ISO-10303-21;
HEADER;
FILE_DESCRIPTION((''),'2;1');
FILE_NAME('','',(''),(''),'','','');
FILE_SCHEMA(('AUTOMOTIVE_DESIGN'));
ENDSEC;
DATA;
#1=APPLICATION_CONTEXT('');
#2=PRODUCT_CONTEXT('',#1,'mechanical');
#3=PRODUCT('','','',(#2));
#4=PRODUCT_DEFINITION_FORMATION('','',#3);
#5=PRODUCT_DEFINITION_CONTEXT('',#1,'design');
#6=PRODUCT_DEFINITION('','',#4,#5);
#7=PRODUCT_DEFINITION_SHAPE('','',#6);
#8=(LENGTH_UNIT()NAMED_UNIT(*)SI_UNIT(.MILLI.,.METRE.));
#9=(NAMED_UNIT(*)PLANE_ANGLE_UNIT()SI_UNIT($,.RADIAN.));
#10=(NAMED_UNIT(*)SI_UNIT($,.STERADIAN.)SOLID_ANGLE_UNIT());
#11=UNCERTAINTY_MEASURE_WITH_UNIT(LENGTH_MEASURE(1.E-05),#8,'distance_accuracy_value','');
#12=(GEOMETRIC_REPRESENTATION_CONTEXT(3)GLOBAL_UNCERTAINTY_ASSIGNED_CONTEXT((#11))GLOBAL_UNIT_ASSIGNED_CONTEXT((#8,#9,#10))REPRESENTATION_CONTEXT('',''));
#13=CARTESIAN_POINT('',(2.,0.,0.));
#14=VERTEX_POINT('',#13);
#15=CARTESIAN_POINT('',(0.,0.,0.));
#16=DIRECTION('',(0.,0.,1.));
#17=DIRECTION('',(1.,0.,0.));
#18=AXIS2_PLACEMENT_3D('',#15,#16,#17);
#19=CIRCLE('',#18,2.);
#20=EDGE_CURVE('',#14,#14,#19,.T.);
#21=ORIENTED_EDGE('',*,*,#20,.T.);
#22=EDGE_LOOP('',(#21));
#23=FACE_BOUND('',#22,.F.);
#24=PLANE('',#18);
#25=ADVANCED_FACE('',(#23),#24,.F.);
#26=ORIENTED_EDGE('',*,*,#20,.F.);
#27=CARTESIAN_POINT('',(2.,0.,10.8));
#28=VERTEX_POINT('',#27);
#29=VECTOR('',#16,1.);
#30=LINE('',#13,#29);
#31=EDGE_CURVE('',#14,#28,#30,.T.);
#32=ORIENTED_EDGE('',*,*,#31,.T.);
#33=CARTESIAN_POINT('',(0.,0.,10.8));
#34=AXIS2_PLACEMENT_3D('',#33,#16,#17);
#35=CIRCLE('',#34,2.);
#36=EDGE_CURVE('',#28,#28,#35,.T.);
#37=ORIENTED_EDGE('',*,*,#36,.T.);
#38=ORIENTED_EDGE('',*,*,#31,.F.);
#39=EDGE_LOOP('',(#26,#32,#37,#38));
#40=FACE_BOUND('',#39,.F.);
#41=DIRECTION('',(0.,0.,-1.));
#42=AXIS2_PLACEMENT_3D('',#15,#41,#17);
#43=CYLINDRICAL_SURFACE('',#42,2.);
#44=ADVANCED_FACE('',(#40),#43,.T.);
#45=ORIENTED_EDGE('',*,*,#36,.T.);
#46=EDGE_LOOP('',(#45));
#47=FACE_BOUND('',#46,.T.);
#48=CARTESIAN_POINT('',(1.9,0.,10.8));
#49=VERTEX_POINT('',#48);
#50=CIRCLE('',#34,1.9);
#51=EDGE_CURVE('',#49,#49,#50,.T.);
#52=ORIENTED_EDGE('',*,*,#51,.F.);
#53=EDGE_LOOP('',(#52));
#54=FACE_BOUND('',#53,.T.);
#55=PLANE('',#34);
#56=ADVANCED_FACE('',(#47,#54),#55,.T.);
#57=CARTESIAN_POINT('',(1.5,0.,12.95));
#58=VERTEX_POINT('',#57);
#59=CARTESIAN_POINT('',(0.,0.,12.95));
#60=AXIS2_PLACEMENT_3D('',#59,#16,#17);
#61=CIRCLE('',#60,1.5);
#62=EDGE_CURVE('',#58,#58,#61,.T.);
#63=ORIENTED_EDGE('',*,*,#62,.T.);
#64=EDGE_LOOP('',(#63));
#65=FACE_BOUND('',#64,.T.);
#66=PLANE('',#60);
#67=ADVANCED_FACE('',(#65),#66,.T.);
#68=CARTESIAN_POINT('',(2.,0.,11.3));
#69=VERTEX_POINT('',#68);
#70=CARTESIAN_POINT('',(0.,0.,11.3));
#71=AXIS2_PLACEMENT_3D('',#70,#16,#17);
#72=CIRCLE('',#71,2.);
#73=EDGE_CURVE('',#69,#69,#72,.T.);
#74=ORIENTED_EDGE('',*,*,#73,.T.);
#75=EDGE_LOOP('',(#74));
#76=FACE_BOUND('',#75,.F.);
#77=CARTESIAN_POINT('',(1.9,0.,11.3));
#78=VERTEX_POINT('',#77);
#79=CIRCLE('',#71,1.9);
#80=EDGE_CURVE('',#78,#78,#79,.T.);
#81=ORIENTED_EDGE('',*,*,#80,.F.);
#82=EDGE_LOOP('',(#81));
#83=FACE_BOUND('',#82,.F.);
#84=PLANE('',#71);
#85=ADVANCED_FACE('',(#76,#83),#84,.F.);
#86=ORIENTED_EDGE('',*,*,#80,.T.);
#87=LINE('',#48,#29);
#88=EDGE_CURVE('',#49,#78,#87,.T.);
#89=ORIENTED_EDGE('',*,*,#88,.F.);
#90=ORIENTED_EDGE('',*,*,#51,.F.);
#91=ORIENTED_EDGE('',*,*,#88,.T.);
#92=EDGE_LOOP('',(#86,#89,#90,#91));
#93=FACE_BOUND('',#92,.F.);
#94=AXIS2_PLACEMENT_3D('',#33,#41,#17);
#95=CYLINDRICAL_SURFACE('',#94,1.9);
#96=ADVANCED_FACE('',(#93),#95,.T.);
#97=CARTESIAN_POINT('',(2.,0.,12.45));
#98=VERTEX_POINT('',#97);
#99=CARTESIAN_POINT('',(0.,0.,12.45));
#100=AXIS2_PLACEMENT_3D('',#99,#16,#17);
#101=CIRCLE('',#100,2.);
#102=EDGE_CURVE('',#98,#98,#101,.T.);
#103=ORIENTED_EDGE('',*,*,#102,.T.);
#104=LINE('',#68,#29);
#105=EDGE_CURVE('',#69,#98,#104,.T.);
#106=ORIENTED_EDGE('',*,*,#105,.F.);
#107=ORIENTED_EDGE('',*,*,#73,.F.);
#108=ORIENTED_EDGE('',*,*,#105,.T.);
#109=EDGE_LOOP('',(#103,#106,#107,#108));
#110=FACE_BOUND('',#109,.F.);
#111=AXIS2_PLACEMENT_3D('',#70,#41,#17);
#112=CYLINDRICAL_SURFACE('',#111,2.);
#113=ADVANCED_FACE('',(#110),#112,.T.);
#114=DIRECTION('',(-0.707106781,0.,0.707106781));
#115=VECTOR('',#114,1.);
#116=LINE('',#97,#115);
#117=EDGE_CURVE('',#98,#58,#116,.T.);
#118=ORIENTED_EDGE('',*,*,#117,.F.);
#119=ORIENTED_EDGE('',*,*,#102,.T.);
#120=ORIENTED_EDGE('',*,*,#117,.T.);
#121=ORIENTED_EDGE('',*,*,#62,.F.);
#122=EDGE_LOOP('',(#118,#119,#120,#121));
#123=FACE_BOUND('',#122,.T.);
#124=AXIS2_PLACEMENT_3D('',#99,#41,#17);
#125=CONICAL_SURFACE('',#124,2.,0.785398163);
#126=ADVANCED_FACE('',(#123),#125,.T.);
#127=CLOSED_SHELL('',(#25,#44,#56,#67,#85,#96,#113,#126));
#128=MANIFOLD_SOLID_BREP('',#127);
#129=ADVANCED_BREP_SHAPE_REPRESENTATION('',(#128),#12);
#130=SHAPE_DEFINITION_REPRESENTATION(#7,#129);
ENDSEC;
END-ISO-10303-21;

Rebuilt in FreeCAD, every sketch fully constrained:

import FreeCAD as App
import Part
import Sketcher

V = App.Vector
Q = App.Units.Quantity


def edges_at(feature, points):
    """Names of the edges that pass closest to the given points."""
    edges = feature.Shape.Edges
    near = lambda p: min(range(len(edges)), key=lambda i: edges[i].distToShape(Part.Vertex(*p))[0])
    return sorted({f"Edge{near(p) + 1}" for p in points})

doc = App.newDocument("Part")
body = doc.addObject("PartDesign::Body", "Body")

# Sketch on XY plane
sketch1 = doc.addObject("Sketcher::SketchObject", "Sketch")
body.addObject(sketch1)
sketch1.AttachmentSupport = (doc.XY_Plane, [""])
sketch1.MapMode = "FlatFace"
sketch1.addGeometry(Part.Circle(V(0, 0, 0), V(0, 0, 1), 2), False)
sketch1.addConstraint([
    Sketcher.Constraint("Coincident", 0, 3, -1, 1),
    Sketcher.Constraint("Diameter", 0, Q("4 mm")),
])
pad1 = doc.addObject("PartDesign::Pad", "Pad")
body.addObject(pad1)
pad1.Profile = sketch1
pad1.Length = 10.8

# Sketch on XY plane
sketch2 = doc.addObject("Sketcher::SketchObject", "Sketch001")
body.addObject(sketch2)
sketch2.AttachmentSupport = (doc.XY_Plane, [""])
sketch2.MapMode = "FlatFace"
sketch2.AttachmentOffset = App.Placement(V(0, 0, 10.8), App.Rotation())
sketch2.addGeometry(Part.Circle(V(0, 0, 0), V(0, 0, 1), 1.9), False)
sketch2.addConstraint([
    Sketcher.Constraint("Coincident", 0, 3, -1, 1),
    Sketcher.Constraint("Diameter", 0, Q("3.8 mm")),
])
pad2 = doc.addObject("PartDesign::Pad", "Pad001")
body.addObject(pad2)
pad2.Profile = sketch2
pad2.Length = 0.5

# Sketch on XY plane
sketch3 = doc.addObject("Sketcher::SketchObject", "Sketch002")
body.addObject(sketch3)
sketch3.AttachmentSupport = (doc.XY_Plane, [""])
sketch3.MapMode = "FlatFace"
sketch3.AttachmentOffset = App.Placement(V(0, 0, 11.3), App.Rotation())
sketch3.addGeometry(Part.Circle(V(0, 0, 0), V(0, 0, 1), 2), False)
sketch3.addConstraint([
    Sketcher.Constraint("Coincident", 0, 3, -1, 1),
    Sketcher.Constraint("Diameter", 0, Q("4 mm")),
])
pad3 = doc.addObject("PartDesign::Pad", "Pad002")
body.addObject(pad3)
pad3.Profile = sketch3
pad3.Length = 1.65
doc.recompute()

chamfer = doc.addObject("PartDesign::Chamfer", "Chamfer")
body.addObject(chamfer)
chamfer.Base = (pad3, edges_at(pad3, [(-2, 0, 12.95)]))
chamfer.Size = 0.5

doc.recompute()
